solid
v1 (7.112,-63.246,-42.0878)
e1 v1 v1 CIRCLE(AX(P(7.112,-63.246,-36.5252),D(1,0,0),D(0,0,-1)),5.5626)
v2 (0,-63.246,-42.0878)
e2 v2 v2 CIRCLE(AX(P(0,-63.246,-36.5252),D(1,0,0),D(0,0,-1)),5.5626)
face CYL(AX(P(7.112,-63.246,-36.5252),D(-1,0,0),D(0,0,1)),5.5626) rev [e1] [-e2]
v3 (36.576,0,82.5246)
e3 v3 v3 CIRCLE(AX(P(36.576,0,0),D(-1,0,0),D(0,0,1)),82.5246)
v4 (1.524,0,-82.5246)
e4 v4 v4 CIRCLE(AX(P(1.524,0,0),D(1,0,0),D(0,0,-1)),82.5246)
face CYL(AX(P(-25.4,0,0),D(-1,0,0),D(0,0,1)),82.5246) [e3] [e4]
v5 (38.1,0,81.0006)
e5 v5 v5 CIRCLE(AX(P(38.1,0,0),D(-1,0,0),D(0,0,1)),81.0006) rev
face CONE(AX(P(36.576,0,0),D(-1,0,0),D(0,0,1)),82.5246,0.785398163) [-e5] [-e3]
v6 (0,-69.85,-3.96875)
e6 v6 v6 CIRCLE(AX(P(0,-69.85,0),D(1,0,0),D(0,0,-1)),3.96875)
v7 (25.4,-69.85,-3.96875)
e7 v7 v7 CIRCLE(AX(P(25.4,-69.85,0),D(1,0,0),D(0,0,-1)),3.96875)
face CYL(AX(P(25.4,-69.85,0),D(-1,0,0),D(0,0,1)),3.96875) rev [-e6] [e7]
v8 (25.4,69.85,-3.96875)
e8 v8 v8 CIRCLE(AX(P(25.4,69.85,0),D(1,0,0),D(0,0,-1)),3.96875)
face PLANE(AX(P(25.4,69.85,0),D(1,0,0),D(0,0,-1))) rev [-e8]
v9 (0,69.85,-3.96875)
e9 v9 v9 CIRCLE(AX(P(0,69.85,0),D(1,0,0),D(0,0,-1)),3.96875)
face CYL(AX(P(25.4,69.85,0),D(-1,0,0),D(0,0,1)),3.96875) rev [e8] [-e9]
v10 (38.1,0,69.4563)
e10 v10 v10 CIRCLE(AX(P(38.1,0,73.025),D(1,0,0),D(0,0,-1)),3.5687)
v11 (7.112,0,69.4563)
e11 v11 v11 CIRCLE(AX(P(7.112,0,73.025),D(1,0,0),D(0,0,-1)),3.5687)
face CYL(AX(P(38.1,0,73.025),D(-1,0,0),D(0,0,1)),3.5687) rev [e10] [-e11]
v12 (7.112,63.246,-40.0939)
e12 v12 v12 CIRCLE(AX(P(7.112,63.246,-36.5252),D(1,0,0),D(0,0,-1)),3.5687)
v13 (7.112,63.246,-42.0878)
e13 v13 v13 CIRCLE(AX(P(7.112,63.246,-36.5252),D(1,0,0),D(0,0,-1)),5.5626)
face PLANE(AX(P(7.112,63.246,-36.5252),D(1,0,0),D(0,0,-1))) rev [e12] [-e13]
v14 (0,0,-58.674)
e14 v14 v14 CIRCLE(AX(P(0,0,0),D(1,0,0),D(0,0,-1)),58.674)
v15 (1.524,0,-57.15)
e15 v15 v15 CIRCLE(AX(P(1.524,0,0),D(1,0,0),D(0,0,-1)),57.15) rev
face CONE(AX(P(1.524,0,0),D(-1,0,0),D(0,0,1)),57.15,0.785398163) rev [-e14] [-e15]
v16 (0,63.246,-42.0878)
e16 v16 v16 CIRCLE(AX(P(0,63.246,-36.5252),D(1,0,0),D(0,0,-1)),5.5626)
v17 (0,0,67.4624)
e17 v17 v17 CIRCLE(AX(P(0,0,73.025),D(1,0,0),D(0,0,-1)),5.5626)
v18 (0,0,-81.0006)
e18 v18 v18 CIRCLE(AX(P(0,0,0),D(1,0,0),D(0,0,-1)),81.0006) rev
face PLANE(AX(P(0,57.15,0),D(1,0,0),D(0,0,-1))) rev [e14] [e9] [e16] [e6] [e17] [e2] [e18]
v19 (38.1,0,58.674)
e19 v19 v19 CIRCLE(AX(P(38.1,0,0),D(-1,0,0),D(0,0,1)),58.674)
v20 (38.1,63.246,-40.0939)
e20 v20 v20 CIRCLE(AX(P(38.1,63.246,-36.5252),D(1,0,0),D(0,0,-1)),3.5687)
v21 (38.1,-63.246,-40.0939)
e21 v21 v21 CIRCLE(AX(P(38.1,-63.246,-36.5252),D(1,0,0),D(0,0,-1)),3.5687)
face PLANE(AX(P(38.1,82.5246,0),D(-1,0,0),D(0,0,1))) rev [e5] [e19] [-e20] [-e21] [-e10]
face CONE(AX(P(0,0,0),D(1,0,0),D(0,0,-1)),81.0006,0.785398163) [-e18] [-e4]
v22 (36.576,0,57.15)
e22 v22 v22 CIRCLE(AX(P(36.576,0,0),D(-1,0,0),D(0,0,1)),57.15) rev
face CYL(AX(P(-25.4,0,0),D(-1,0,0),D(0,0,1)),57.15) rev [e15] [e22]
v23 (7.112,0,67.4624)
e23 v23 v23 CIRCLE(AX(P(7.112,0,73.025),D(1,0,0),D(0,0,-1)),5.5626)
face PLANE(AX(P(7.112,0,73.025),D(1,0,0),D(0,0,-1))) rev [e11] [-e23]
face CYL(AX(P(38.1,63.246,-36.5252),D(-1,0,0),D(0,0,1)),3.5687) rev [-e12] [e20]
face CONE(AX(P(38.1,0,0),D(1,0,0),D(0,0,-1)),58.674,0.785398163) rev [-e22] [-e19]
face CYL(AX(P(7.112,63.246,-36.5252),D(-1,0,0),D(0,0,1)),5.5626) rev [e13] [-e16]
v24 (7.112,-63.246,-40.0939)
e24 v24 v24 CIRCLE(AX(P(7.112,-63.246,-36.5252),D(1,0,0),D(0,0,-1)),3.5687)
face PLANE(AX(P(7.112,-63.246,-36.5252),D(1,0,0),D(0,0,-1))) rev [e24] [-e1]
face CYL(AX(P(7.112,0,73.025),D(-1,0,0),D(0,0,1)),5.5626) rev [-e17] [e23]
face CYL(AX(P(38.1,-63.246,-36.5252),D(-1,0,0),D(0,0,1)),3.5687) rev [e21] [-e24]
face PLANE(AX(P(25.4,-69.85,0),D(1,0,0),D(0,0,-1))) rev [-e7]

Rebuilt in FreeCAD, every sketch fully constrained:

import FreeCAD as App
import Part
import Sketcher

V = App.Vector
Q = App.Units.Quantity


def edges_at(feature, points):
    """Names of the edges that pass closest to the given points."""
    edges = feature.Shape.Edges
    near = lambda p: min(range(len(edges)), key=lambda i: edges[i].distToShape(Part.Vertex(*p))[0])
    return sorted({f"Edge{near(p) + 1}" for p in points})

doc = App.newDocument("Part")
body = doc.addObject("PartDesign::Body", "Body")

# Sketch on XY plane
sketch1 = body.newObject("Sketcher::SketchObject", "Sketch")
sketch1.AttachmentSupport = (doc.getObject("XY_Plane"), [""])
sketch1.MapMode = "FlatFace"
sketch1.addGeometry([
    Part.LineSegment(V(0, 57, 0), V(38, 57, 0)),
    Part.LineSegment(V(38, 57, 0), V(38, 83, 0)),
    Part.LineSegment(V(38, 83, 0), V(0, 83, 0)),
    Part.LineSegment(V(0, 83, 0), V(0, 57, 0)),
], False)
sketch1.addConstraint([
    Sketcher.Constraint("Coincident", 0, 2, 1, 1),
    Sketcher.Constraint("Coincident", 1, 2, 2, 1),
    Sketcher.Constraint("Coincident", 2, 2, 3, 1),
    Sketcher.Constraint("Coincident", 3, 2, 0, 1),
    Sketcher.Constraint("Horizontal", 0),
    Sketcher.Constraint("Vertical", 1),
    Sketcher.Constraint("Horizontal", 2),
    Sketcher.Constraint("Vertical", 3),
    Sketcher.Constraint("PointOnObject", 2, 2, -2),
    Sketcher.Constraint("DistanceX", 0, 1, 0, 2, Q("1.5 in")),
    Sketcher.Constraint("DistanceY", 1, 1, 1, 2, Q("0.999 in")),
    Sketcher.Constraint("DistanceY", -1, 1, 0, 2, Q("2.25 in")),
])
revolution = body.newObject("PartDesign::Revolution", "Revolution")
revolution.Profile = sketch1
revolution.ReferenceAxis = (sketch1, ["H_Axis"])
revolution.Angle = 360
doc.recompute()

chamfer = body.newObject("PartDesign::Chamfer", "Chamfer")
chamfer.Base = (revolution, edges_at(revolution, [
    (0, 0, -57.15),
    (38.1, 0, -57.15),
    (38.1, 0, -82.525),
    (0, 0, -82.525),
]))
chamfer.Size = Q("0.06 in")

# Sketch on YZ plane
sketch2 = body.newObject("Sketcher::SketchObject", "Sketch001")
sketch2.AttachmentSupport = (doc.getObject("YZ_Plane"), [""])
sketch2.MapMode = "FlatFace"
sketch2.addGeometry(Part.Circle(V(0, 73, 0), V(0, 0, 1), 3.6), False)
sketch2.addConstraint([
    Sketcher.Constraint("PointOnObject", 0, 3, -2),
    Sketcher.Constraint("Diameter", 0, Q("0.281 in")),
    Sketcher.Constraint("DistanceY", -1, 1, 0, 3, Q("2.875 in")),
])
pocket1 = body.newObject("PartDesign::Pocket", "Pocket")
pocket1.Profile = sketch2
pocket1.Length = Q("1.5 in")
pocket1.Reversed = True

# Sketch on YZ plane
sketch3 = body.newObject("Sketcher::SketchObject", "Sketch002")
sketch3.AttachmentSupport = (doc.getObject("YZ_Plane"), [""])
sketch3.MapMode = "FlatFace"
sketch3.addGeometry(Part.Circle(V(0, 73, 0), V(0, 0, 1), 6), False)
sketch3.addConstraint([
    Sketcher.Constraint("PointOnObject", 0, 3, -2),
    Sketcher.Constraint("Diameter", 0, Q("0.438 in")),
    Sketcher.Constraint("DistanceY", -1, 1, 0, 3, Q("2.875 in")),
])
pocket2 = body.newObject("PartDesign::Pocket", "Pocket001")
pocket2.Profile = sketch3
pocket2.Length = Q("0.28 in")
pocket2.Reversed = True

# Sketch on YZ plane
sketch4 = body.newObject("Sketcher::SketchObject", "Sketch003")
sketch4.AttachmentSupport = (doc.getObject("YZ_Plane"), [""])
sketch4.MapMode = "FlatFace"
sketch4.addGeometry(Part.Circle(V(-63.2, -36.5, 0), V(0, 0, 1), 3.6), False)
sketch4.addConstraint([
    Sketcher.Constraint("Diameter", 0, Q("0.281 in")),
    Sketcher.Constraint("DistanceX", 0, 3, -1, 1, Q("2.49 in")),
    Sketcher.Constraint("DistanceY", 0, 3, -1, 1, Q("1.438 in")),
])
pocket3 = body.newObject("PartDesign::Pocket", "Pocket002")
pocket3.Profile = sketch4
pocket3.Length = Q("1.5 in")
pocket3.Reversed = True

# Sketch on YZ plane
sketch5 = body.newObject("Sketcher::SketchObject", "Sketch004")
sketch5.AttachmentSupport = (doc.getObject("YZ_Plane"), [""])
sketch5.MapMode = "FlatFace"
sketch5.addGeometry(Part.Circle(V(-63, -37, 0), V(0, 0, 1), 6), False)
sketch5.addConstraint([
    Sketcher.Constraint("Diameter", 0, Q("0.438 in")),
    Sketcher.Constraint("DistanceX", 0, 3, -1, 1, Q("2.49 in")),
    Sketcher.Constraint("DistanceY", 0, 3, -1, 1, Q("1.438 in")),
])
pocket4 = body.newObject("PartDesign::Pocket", "Pocket003")
pocket4.Profile = sketch5
pocket4.Length = Q("0.28 in")
pocket4.Reversed = True

# Sketch on YZ plane
sketch6 = body.newObject("Sketcher::SketchObject", "Sketch005")
sketch6.AttachmentSupport = (doc.getObject("YZ_Plane"), [""])
sketch6.MapMode = "FlatFace"
sketch6.addGeometry(Part.Circle(V(63.2, -36.5, 0), V(0, 0, 1), 3.6), False)
sketch6.addConstraint([
    Sketcher.Constraint("Diameter", 0, Q("0.281 in")),
    Sketcher.Constraint("DistanceX", -1, 1, 0, 3, Q("2.49 in")),
    Sketcher.Constraint("DistanceY", 0, 3, -1, 1, Q("1.438 in")),
])
pocket5 = body.newObject("PartDesign::Pocket", "Pocket004")
pocket5.Profile = sketch6
pocket5.Length = Q("1.5 in")
pocket5.Reversed = True

# Sketch on YZ plane
sketch7 = body.newObject("Sketcher::SketchObject", "Sketch006")
sketch7.AttachmentSupport = (doc.getObject("YZ_Plane"), [""])
sketch7.MapMode = "FlatFace"
sketch7.addGeometry(Part.Circle(V(63, -37, 0), V(0, 0, 1), 6), False)
sketch7.addConstraint([
    Sketcher.Constraint("Diameter", 0, Q("0.438 in")),
    Sketcher.Constraint("DistanceX", -1, 1, 0, 3, Q("2.49 in")),
    Sketcher.Constraint("DistanceY", 0, 3, -1, 1, Q("1.438 in")),
])
pocket6 = body.newObject("PartDesign::Pocket", "Pocket005")
pocket6.Profile = sketch7
pocket6.Length = Q("0.28 in")
pocket6.Reversed = True

# Sketch on YZ plane
sketch8 = body.newObject("Sketcher::SketchObject", "Sketch007")
sketch8.AttachmentSupport = (doc.getObject("YZ_Plane"), [""])
sketch8.MapMode = "FlatFace"
sketch8.addGeometry(Part.Circle(V(-69.8, 0, 0), V(0, 0, 1), 4), False)
sketch8.addConstraint([
    Sketcher.Constraint("PointOnObject", 0, 3, -1),
    Sketcher.Constraint("Diameter", 0, Q("0.3125 in")),
    Sketcher.Constraint("DistanceX", 0, 3, -1, 1, Q("2.75 in")),
])
pocket7 = body.newObject("PartDesign::Pocket", "Pocket006")
pocket7.Profile = sketch8
pocket7.Length = Q("1 in")
pocket7.Reversed = True

# Sketch on YZ plane
sketch9 = body.newObject("Sketcher::SketchObject", "Sketch008")
sketch9.AttachmentSupport = (doc.getObject("YZ_Plane"), [""])
sketch9.MapMode = "FlatFace"
sketch9.addGeometry(Part.Circle(V(69.8, 0, 0), V(0, 0, 1), 4), False)
sketch9.addConstraint([
    Sketcher.Constraint("PointOnObject", 0, 3, -1),
    Sketcher.Constraint("Diameter", 0, Q("0.3125 in")),
    Sketcher.Constraint("DistanceX", -1, 1, 0, 3, Q("2.75 in")),
])
pocket8 = body.newObject("PartDesign::Pocket", "Pocket007")
pocket8.Profile = sketch9
pocket8.Length = Q("1 in")
pocket8.Reversed = True

doc.recompute()
